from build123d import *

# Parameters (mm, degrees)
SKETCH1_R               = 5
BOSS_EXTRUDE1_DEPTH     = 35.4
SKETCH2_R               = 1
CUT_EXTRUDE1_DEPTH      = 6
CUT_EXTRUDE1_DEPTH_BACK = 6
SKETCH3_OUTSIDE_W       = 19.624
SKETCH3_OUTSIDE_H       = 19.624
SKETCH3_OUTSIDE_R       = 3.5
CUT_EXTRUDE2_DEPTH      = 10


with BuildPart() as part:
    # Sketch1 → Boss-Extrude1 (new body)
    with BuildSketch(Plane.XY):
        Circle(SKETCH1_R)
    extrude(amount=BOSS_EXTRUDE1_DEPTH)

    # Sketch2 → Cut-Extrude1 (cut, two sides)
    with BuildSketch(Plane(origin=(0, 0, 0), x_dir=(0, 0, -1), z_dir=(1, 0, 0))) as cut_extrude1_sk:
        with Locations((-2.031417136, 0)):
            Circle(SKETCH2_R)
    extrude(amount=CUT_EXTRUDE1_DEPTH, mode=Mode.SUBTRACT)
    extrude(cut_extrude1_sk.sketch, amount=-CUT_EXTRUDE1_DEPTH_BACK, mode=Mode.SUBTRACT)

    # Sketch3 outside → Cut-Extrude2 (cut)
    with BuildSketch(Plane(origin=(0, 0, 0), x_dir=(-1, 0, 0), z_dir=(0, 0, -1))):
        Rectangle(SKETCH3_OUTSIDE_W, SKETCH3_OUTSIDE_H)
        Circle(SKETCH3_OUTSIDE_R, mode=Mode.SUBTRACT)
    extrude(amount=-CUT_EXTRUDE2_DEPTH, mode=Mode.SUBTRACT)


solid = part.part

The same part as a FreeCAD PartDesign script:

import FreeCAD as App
import Part
import Sketcher

V = App.Vector
Q = App.Units.Quantity

doc = App.newDocument("Part")
body = doc.addObject("PartDesign::Body", "Body")

# Sketch on XY plane
sketch1 = doc.addObject("Sketcher::SketchObject", "Sketch")
body.addObject(sketch1)
sketch1.AttachmentSupport = (doc.XY_Plane, [""])
sketch1.MapMode = "FlatFace"
sketch1.addGeometry(Part.Circle(V(0, 0, 0), V(0, 0, 1), 5), False)
sketch1.addConstraint(Sketcher.Constraint("Coincident", 0, 3, -1, 1))
sketch1.addConstraint(Sketcher.Constraint("Diameter", 0, Q("10 mm")))
pad1 = doc.addObject("PartDesign::Pad", "Pad")
body.addObject(pad1)
pad1.Profile = sketch1
pad1.Length = 35.4

# Sketch on YZ plane
sketch2 = doc.addObject("Sketcher::SketchObject", "Sketch001")
body.addObject(sketch2)
sketch2.AttachmentSupport = (doc.YZ_Plane, [""])
sketch2.MapMode = "FlatFace"
sketch2.addGeometry(Part.Circle(V(0, 2, 0), V(0, 0, 1), 1), False)
sketch2.addConstraint(Sketcher.Constraint("PointOnObject", 0, 3, -2))
sketch2.addConstraint(Sketcher.Constraint("Diameter", 0, Q("2 mm")))
sketch2.addConstraint(Sketcher.Constraint("DistanceY", -1, 1, 0, 3, Q("2.031417 mm")))
pocket1 = doc.addObject("PartDesign::Pocket", "Pocket")
body.addObject(pocket1)
pocket1.Profile = sketch2
pocket1.Type = "ThroughAll"
pocket1.Midplane = True

# Sketch on XY plane
sketch3 = doc.addObject("Sketcher::SketchObject", "Sketch002")
body.addObject(sketch3)
sketch3.AttachmentSupport = (doc.XY_Plane, [""])
sketch3.MapMode = "FlatFace"
sketch3.addGeometry(Part.LineSegment(V(9.8, 9.8, 0), V(9.8, -9.8, 0)), False)
sketch3.addGeometry(Part.LineSegment(V(9.8, -9.8, 0), V(-9.8, -9.8, 0)), False)
sketch3.addGeometry(Part.LineSegment(V(-9.8, -9.8, 0), V(-9.8, 9.8, 0)), False)
sketch3.addGeometry(Part.LineSegment(V(-9.8, 9.8, 0), V(9.8, 9.8, 0)), False)
sketch3.addGeometry(Part.Circle(V(0, 0, 0), V(0, 0, 1), 3.5), False)
sketch3.addConstraint(Sketcher.Constraint("Coincident", 0, 2, 1, 1))
sketch3.addConstraint(Sketcher.Constraint("Coincident", 1, 2, 2, 1))
sketch3.addConstraint(Sketcher.Constraint("Coincident", 2, 2, 3, 1))
sketch3.addConstraint(Sketcher.Constraint("Coincident", 3, 2, 0, 1))
sketch3.addConstraint(Sketcher.Constraint("Vertical", 0))
sketch3.addConstraint(Sketcher.Constraint("Horizontal", 1))
sketch3.addConstraint(Sketcher.Constraint("Vertical", 2))
sketch3.addConstraint(Sketcher.Constraint("Horizontal", 3))
sketch3.addConstraint(Sketcher.Constraint("Coincident", 4, 3, -1, 1))
sketch3.addConstraint(Sketcher.Constraint("Symmetric", 0, 2, 2, 2, -1, 1))
sketch3.addConstraint(Sketcher.Constraint("Equal", 3, 0))
sketch3.addConstraint(Sketcher.Constraint("Diameter", 4, Q("7 mm")))
sketch3.addConstraint(Sketcher.Constraint("DistanceX", 1, 2, 1, 1, Q("19.624 mm")))
pocket2 = doc.addObject("PartDesign::Pocket", "Pocket001")
body.addObject(pocket2)
pocket2.Profile = sketch3
pocket2.Length = 10
pocket2.Reversed = True

doc.recompute()
